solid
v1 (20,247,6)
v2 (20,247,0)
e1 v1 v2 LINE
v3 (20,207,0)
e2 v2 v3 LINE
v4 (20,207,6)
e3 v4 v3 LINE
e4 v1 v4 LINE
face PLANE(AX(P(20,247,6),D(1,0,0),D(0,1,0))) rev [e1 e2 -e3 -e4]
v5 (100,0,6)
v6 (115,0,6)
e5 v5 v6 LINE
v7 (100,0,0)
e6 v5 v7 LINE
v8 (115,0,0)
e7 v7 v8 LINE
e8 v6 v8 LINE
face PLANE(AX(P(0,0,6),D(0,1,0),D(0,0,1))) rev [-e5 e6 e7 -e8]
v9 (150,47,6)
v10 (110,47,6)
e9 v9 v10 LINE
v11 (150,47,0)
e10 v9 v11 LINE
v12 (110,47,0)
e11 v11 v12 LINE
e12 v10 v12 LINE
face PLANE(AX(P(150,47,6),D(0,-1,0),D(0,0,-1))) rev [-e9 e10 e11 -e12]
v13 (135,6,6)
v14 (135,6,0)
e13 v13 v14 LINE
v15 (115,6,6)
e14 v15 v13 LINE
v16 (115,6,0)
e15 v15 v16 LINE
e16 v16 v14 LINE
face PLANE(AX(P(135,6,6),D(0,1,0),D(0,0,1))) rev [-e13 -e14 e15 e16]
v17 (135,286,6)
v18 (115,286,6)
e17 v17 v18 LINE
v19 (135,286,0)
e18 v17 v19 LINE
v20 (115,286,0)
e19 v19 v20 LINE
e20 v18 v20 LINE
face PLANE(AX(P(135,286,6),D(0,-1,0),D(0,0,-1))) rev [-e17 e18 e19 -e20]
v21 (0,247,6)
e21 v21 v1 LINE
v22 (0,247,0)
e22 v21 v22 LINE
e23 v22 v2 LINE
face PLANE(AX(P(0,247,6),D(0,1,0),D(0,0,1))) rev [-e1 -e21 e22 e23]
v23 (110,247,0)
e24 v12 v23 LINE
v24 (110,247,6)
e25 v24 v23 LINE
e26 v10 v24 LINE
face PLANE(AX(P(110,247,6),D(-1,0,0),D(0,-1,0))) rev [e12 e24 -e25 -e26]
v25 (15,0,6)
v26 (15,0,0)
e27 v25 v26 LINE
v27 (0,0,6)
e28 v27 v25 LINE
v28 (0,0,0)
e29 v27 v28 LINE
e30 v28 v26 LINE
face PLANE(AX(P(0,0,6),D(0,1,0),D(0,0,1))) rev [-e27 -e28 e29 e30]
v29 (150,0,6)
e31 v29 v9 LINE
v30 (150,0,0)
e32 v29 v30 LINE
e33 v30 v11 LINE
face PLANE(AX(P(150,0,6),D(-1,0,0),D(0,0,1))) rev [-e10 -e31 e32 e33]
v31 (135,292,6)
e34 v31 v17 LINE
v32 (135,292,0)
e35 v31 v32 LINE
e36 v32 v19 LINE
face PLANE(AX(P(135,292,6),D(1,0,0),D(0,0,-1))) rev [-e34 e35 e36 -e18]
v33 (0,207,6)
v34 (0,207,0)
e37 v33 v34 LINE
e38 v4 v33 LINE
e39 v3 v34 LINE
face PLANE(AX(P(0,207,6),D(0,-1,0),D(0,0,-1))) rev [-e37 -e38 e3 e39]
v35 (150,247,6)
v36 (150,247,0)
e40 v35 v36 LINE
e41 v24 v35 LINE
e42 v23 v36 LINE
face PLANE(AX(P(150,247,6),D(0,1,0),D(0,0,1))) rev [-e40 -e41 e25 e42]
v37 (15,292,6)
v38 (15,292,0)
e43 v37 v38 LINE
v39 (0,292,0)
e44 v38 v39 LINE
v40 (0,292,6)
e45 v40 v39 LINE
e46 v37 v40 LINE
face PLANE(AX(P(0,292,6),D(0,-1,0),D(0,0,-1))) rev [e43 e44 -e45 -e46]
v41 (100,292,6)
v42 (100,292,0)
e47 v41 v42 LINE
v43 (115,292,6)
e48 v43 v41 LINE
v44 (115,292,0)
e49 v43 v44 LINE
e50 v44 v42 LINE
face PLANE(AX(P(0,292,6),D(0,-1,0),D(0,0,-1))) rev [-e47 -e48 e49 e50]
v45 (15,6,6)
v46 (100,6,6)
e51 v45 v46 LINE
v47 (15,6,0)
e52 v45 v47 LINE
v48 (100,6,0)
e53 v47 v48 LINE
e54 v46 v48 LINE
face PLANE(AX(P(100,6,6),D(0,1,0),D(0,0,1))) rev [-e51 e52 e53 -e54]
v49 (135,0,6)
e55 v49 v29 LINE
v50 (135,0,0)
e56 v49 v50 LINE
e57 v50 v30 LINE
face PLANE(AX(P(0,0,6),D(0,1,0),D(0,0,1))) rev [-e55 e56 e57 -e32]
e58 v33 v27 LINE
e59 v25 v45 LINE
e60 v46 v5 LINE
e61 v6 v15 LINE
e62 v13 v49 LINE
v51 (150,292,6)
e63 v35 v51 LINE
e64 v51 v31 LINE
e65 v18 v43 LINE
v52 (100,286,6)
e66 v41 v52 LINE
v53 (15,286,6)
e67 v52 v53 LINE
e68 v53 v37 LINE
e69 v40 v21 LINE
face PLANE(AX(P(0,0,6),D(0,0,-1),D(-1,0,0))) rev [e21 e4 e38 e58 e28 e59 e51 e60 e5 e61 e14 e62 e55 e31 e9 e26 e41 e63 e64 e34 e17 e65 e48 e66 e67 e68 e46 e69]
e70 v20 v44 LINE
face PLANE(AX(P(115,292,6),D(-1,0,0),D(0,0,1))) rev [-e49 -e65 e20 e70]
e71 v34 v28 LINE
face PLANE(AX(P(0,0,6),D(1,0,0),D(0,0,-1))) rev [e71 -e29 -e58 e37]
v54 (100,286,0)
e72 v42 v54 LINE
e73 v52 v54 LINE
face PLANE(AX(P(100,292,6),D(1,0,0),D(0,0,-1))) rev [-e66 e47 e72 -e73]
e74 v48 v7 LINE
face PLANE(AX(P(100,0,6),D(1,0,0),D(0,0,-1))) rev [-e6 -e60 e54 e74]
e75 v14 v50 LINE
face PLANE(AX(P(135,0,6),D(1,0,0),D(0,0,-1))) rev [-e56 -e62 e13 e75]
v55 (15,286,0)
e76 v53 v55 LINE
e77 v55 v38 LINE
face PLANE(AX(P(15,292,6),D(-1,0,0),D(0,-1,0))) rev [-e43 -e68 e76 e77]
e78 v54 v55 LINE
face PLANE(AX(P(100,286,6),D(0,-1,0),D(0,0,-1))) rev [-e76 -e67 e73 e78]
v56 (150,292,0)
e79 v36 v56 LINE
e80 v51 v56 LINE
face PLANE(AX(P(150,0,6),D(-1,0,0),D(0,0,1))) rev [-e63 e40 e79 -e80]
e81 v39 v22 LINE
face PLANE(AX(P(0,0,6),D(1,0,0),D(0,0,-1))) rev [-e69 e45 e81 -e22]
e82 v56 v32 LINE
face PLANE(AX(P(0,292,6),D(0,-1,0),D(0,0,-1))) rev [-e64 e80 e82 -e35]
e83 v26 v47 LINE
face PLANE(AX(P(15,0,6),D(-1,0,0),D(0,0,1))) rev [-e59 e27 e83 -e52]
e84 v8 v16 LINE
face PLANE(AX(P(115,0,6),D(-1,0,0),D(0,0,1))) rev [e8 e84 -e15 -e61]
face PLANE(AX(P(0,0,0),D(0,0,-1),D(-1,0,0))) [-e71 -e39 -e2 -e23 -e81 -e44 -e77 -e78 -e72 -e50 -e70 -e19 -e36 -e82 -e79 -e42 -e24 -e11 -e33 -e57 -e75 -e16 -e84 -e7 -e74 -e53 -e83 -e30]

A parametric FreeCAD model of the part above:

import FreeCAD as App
import Part
import Sketcher
from FreeCAD import Vector
Q = App.Units.Quantity

doc = App.newDocument("Part")
params = doc.addObject("Spreadsheet::Sheet", "Params")
for row, (alias, value) in enumerate([
    ("sketch1_width", "150 mm"),
    ("sketch1_height", "292 mm"),
    ("pad1_length", "6 mm"),
    ("sketch2_width", "40 mm"),
    ("sketch2_height", "200 mm"),
    ("sketch3_width", "20 mm"),
    ("sketch3_width2", "85 mm"),
    ("sketch3_height", "6 mm"),
    ("sketch4_width", "20 mm"),
    ("sketch4_height", "40 mm"),
], start=1):
    params.set(f"A{row}", alias)
    params.set(f"B{row}", "=" + value)
    params.setAlias(f"B{row}", alias)

body = doc.addObject("PartDesign::Body", "Body")

# Sketch on XY plane
sketch1 = body.newObject("Sketcher::SketchObject", "Sketch")
sketch1.AttachmentSupport = (doc.getObject("XY_Plane"), [""])
sketch1.MapMode = "FlatFace"
sketch1.addGeometry([
    Part.LineSegment(Vector(0, 292, 0), Vector(0, 0, 0)),
    Part.LineSegment(Vector(0, 0, 0), Vector(150, 0, 0)),
    Part.LineSegment(Vector(150, 0, 0), Vector(150, 292, 0)),
    Part.LineSegment(Vector(150, 292, 0), Vector(0, 292, 0)),
], False)
sketch1.addConstraint([
    Sketcher.Constraint("Coincident", 0, 2, 1, 1),
    Sketcher.Constraint("Coincident", 1, 2, 2, 1),
    Sketcher.Constraint("Coincident", 2, 2, 3, 1),
    Sketcher.Constraint("Coincident", 3, 2, 0, 1),
    Sketcher.Constraint("Vertical", 0),
    Sketcher.Constraint("Horizontal", 1),
    Sketcher.Constraint("Vertical", 2),
    Sketcher.Constraint("Horizontal", 3),
    Sketcher.Constraint("Coincident", 0, 2, -1, 1),
    Sketcher.Constraint("DistanceX", 1, 1, 1, 2, Q("150 mm")),
    Sketcher.Constraint("DistanceY", 0, 2, 0, 1, Q("292 mm")),
])
sketch1.setExpression("Constraints[9]", "Params.sketch1_width")
sketch1.setExpression("Constraints[10]", "Params.sketch1_height")
pad1 = body.newObject("PartDesign::Pad", "Pad")
pad1.Profile = sketch1
pad1.setExpression("Length", "Params.pad1_length")

# Sketch on XY plane
sketch2 = body.newObject("Sketcher::SketchObject", "Sketch001")
sketch2.AttachmentSupport = (doc.getObject("XY_Plane"), [""])
sketch2.MapMode = "FlatFace"
sketch2.addGeometry([
    Part.LineSegment(Vector(150, 247, 0), Vector(150, 47, 0)),
    Part.LineSegment(Vector(150, 47, 0), Vector(110, 47, 0)),
    Part.LineSegment(Vector(110, 47, 0), Vector(110, 247, 0)),
    Part.LineSegment(Vector(110, 247, 0), Vector(150, 247, 0)),
], False)
sketch2.addConstraint([
    Sketcher.Constraint("Coincident", 0, 2, 1, 1),
    Sketcher.Constraint("Coincident", 1, 2, 2, 1),
    Sketcher.Constraint("Coincident", 2, 2, 3, 1),
    Sketcher.Constraint("Coincident", 3, 2, 0, 1),
    Sketcher.Constraint("Vertical", 0),
    Sketcher.Constraint("Horizontal", 1),
    Sketcher.Constraint("Vertical", 2),
    Sketcher.Constraint("Horizontal", 3),
    Sketcher.Constraint("DistanceX", 1, 2, 1, 1, Q("40 mm")),
    Sketcher.Constraint("DistanceY", 0, 2, 0, 1, Q("200 mm")),
    Sketcher.Constraint("DistanceX", -1, 1, 0, 2, Q("150 mm")),
    Sketcher.Constraint("DistanceY", -1, 1, 0, 2, Q("47 mm")),
])
sketch2.setExpression("Constraints[8]", "Params.sketch2_width")
sketch2.setExpression("Constraints[9]", "Params.sketch2_height")
pocket1 = body.newObject("PartDesign::Pocket", "Pocket")
pocket1.Profile = sketch2
pocket1.Type = "ThroughAll"
pocket1.Reversed = True

# Sketch on XY plane
sketch3 = body.newObject("Sketcher::SketchObject", "Sketch002")
sketch3.AttachmentSupport = (doc.getObject("XY_Plane"), [""])
sketch3.MapMode = "FlatFace"
sketch3.addGeometry([
    Part.LineSegment(Vector(135, 292, 0), Vector(135, 286, 0)),  # 0
    Part.LineSegment(Vector(135, 286, 0), Vector(115, 286, 0)),  # 1
    Part.LineSegment(Vector(115, 286, 0), Vector(115, 292, 0)),  # 2
    Part.LineSegment(Vector(115, 292, 0), Vector(135, 292, 0)),  # 3
    Part.LineSegment(Vector(100, 292, 0), Vector(100, 286, 0)),  # 4
    Part.LineSegment(Vector(100, 286, 0), Vector(15, 286, 0)),  # 5
    Part.LineSegment(Vector(15, 286, 0), Vector(15, 292, 0)),  # 6
    Part.LineSegment(Vector(15, 292, 0), Vector(100, 292, 0)),  # 7
    Part.LineSegment(Vector(135, 6, 0), Vector(135, 0, 0)),  # 8
    Part.LineSegment(Vector(135, 0, 0), Vector(115, 0, 0)),  # 9
    Part.LineSegment(Vector(115, 0, 0), Vector(115, 6, 0)),  # 10
    Part.LineSegment(Vector(115, 6, 0), Vector(135, 6, 0)),  # 11
    Part.LineSegment(Vector(100, 6, 0), Vector(100, 0, 0)),  # 12
    Part.LineSegment(Vector(100, 0, 0), Vector(15, 0, 0)),  # 13
    Part.LineSegment(Vector(15, 0, 0), Vector(15, 6, 0)),  # 14
    Part.LineSegment(Vector(15, 6, 0), Vector(100, 6, 0)),  # 15
], False)
sketch3.addConstraint([
    Sketcher.Constraint("Coincident", 0, 2, 1, 1),
    Sketcher.Constraint("Coincident", 1, 2, 2, 1),
    Sketcher.Constraint("Coincident", 2, 2, 3, 1),
    Sketcher.Constraint("Coincident", 3, 2, 0, 1),
    Sketcher.Constraint("Coincident", 4, 2, 5, 1),
    Sketcher.Constraint("Coincident", 5, 2, 6, 1),
    Sketcher.Constraint("Coincident", 6, 2, 7, 1),
    Sketcher.Constraint("Coincident", 7, 2, 4, 1),
    Sketcher.Constraint("Coincident", 8, 2, 9, 1),
    Sketcher.Constraint("Coincident", 9, 2, 10, 1),
    Sketcher.Constraint("Coincident", 10, 2, 11, 1),
    Sketcher.Constraint("Coincident", 11, 2, 8, 1),
    Sketcher.Constraint("Coincident", 12, 2, 13, 1),
    Sketcher.Constraint("Coincident", 13, 2, 14, 1),
    Sketcher.Constraint("Coincident", 14, 2, 15, 1),
    Sketcher.Constraint("Coincident", 15, 2, 12, 1),
    Sketcher.Constraint("Vertical", 0),
    Sketcher.Constraint("Horizontal", 1),
    Sketcher.Constraint("Vertical", 2),
    Sketcher.Constraint("Horizontal", 3),
    Sketcher.Constraint("Vertical", 4),
    Sketcher.Constraint("Horizontal", 5),
    Sketcher.Constraint("Vertical", 6),
    Sketcher.Constraint("Horizontal", 7),
    Sketcher.Constraint("Vertical", 8),
    Sketcher.Constraint("Horizontal", 9),
    Sketcher.Constraint("Vertical", 10),
    Sketcher.Constraint("Horizontal", 11),
    Sketcher.Constraint("Vertical", 12),
    Sketcher.Constraint("Horizontal", 13),
    Sketcher.Constraint("Vertical", 14),
    Sketcher.Constraint("Horizontal", 15),
    Sketcher.Constraint("PointOnObject", 8, 2, -1),
    Sketcher.Constraint("PointOnObject", 12, 2, -1),
    Sketcher.Constraint("Horizontal", 1, 2, 4, 2),
    Sketcher.Constraint("Horizontal", 3, 2, 6, 2),
    Sketcher.Constraint("Horizontal", 11, 2, 14, 2),
    Sketcher.Constraint("Vertical", 3, 2, 8, 2),
    Sketcher.Constraint("Vertical", 2, 2, 9, 2),
    Sketcher.Constraint("Vertical", 7, 2, 12, 2),
    Sketcher.Constraint("Vertical", 6, 2, 13, 2),
    Sketcher.Constraint("Equal", 6, 8),
    Sketcher.Constraint("DistanceX", 1, 2, 1, 1, Q("20 mm")),
    Sketcher.Constraint("DistanceX", 5, 2, 5, 1, Q("85 mm")),
    Sketcher.Constraint("DistanceY", 0, 2, 0, 1, Q("6 mm")),
    Sketcher.Constraint("DistanceX", -1, 1, 0, 2, Q("135 mm")),
    Sketcher.Constraint("DistanceY", -1, 1, 0, 2, Q("286 mm")),
    Sketcher.Constraint("DistanceX", -1, 1, 4, 2, Q("100 mm")),
])
sketch3.setExpression("Constraints[42]", "Params.sketch3_width")
sketch3.setExpression("Constraints[43]", "Params.sketch3_width2")
sketch3.setExpression("Constraints[44]", "Params.sketch3_height")
pocket2 = body.newObject("PartDesign::Pocket", "Pocket001")
pocket2.Profile = sketch3
pocket2.Type = "ThroughAll"
pocket2.Reversed = True

# Sketch on XY plane
sketch4 = body.newObject("Sketcher::SketchObject", "Sketch003")
sketch4.AttachmentSupport = (doc.getObject("XY_Plane"), [""])
sketch4.MapMode = "FlatFace"
sketch4.addGeometry([
    Part.LineSegment(Vector(20, 247, 0), Vector(20, 207, 0)),
    Part.LineSegment(Vector(20, 207, 0), Vector(0, 207, 0)),
    Part.LineSegment(Vector(0, 207, 0), Vector(0, 247, 0)),
    Part.LineSegment(Vector(0, 247, 0), Vector(20, 247, 0)),
], False)
sketch4.addConstraint([
    Sketcher.Constraint("Coincident", 0, 2, 1, 1),
    Sketcher.Constraint("Coincident", 1, 2, 2, 1),
    Sketcher.Constraint("Coincident", 2, 2, 3, 1),
    Sketcher.Constraint("Coincident", 3, 2, 0, 1),
    Sketcher.Constraint("Vertical", 0),
    Sketcher.Constraint("Horizontal", 1),
    Sketcher.Constraint("Vertical", 2),
    Sketcher.Constraint("Horizontal", 3),
    Sketcher.Constraint("PointOnObject", 1, 2, -2),
    Sketcher.Constraint("DistanceX", 1, 2, 1, 1, Q("20 mm")),
    Sketcher.Constraint("DistanceY", 0, 2, 0, 1, Q("40 mm")),
    Sketcher.Constraint("DistanceY", -1, 1, 0, 2, Q("207 mm")),
])
sketch4.setExpression("Constraints[9]", "Params.sketch4_width")
sketch4.setExpression("Constraints[10]", "Params.sketch4_height")
pocket3 = body.newObject("PartDesign::Pocket", "Pocket002")
pocket3.Profile = sketch4
pocket3.Type = "ThroughAll"
pocket3.Reversed = True

doc.recompute()
